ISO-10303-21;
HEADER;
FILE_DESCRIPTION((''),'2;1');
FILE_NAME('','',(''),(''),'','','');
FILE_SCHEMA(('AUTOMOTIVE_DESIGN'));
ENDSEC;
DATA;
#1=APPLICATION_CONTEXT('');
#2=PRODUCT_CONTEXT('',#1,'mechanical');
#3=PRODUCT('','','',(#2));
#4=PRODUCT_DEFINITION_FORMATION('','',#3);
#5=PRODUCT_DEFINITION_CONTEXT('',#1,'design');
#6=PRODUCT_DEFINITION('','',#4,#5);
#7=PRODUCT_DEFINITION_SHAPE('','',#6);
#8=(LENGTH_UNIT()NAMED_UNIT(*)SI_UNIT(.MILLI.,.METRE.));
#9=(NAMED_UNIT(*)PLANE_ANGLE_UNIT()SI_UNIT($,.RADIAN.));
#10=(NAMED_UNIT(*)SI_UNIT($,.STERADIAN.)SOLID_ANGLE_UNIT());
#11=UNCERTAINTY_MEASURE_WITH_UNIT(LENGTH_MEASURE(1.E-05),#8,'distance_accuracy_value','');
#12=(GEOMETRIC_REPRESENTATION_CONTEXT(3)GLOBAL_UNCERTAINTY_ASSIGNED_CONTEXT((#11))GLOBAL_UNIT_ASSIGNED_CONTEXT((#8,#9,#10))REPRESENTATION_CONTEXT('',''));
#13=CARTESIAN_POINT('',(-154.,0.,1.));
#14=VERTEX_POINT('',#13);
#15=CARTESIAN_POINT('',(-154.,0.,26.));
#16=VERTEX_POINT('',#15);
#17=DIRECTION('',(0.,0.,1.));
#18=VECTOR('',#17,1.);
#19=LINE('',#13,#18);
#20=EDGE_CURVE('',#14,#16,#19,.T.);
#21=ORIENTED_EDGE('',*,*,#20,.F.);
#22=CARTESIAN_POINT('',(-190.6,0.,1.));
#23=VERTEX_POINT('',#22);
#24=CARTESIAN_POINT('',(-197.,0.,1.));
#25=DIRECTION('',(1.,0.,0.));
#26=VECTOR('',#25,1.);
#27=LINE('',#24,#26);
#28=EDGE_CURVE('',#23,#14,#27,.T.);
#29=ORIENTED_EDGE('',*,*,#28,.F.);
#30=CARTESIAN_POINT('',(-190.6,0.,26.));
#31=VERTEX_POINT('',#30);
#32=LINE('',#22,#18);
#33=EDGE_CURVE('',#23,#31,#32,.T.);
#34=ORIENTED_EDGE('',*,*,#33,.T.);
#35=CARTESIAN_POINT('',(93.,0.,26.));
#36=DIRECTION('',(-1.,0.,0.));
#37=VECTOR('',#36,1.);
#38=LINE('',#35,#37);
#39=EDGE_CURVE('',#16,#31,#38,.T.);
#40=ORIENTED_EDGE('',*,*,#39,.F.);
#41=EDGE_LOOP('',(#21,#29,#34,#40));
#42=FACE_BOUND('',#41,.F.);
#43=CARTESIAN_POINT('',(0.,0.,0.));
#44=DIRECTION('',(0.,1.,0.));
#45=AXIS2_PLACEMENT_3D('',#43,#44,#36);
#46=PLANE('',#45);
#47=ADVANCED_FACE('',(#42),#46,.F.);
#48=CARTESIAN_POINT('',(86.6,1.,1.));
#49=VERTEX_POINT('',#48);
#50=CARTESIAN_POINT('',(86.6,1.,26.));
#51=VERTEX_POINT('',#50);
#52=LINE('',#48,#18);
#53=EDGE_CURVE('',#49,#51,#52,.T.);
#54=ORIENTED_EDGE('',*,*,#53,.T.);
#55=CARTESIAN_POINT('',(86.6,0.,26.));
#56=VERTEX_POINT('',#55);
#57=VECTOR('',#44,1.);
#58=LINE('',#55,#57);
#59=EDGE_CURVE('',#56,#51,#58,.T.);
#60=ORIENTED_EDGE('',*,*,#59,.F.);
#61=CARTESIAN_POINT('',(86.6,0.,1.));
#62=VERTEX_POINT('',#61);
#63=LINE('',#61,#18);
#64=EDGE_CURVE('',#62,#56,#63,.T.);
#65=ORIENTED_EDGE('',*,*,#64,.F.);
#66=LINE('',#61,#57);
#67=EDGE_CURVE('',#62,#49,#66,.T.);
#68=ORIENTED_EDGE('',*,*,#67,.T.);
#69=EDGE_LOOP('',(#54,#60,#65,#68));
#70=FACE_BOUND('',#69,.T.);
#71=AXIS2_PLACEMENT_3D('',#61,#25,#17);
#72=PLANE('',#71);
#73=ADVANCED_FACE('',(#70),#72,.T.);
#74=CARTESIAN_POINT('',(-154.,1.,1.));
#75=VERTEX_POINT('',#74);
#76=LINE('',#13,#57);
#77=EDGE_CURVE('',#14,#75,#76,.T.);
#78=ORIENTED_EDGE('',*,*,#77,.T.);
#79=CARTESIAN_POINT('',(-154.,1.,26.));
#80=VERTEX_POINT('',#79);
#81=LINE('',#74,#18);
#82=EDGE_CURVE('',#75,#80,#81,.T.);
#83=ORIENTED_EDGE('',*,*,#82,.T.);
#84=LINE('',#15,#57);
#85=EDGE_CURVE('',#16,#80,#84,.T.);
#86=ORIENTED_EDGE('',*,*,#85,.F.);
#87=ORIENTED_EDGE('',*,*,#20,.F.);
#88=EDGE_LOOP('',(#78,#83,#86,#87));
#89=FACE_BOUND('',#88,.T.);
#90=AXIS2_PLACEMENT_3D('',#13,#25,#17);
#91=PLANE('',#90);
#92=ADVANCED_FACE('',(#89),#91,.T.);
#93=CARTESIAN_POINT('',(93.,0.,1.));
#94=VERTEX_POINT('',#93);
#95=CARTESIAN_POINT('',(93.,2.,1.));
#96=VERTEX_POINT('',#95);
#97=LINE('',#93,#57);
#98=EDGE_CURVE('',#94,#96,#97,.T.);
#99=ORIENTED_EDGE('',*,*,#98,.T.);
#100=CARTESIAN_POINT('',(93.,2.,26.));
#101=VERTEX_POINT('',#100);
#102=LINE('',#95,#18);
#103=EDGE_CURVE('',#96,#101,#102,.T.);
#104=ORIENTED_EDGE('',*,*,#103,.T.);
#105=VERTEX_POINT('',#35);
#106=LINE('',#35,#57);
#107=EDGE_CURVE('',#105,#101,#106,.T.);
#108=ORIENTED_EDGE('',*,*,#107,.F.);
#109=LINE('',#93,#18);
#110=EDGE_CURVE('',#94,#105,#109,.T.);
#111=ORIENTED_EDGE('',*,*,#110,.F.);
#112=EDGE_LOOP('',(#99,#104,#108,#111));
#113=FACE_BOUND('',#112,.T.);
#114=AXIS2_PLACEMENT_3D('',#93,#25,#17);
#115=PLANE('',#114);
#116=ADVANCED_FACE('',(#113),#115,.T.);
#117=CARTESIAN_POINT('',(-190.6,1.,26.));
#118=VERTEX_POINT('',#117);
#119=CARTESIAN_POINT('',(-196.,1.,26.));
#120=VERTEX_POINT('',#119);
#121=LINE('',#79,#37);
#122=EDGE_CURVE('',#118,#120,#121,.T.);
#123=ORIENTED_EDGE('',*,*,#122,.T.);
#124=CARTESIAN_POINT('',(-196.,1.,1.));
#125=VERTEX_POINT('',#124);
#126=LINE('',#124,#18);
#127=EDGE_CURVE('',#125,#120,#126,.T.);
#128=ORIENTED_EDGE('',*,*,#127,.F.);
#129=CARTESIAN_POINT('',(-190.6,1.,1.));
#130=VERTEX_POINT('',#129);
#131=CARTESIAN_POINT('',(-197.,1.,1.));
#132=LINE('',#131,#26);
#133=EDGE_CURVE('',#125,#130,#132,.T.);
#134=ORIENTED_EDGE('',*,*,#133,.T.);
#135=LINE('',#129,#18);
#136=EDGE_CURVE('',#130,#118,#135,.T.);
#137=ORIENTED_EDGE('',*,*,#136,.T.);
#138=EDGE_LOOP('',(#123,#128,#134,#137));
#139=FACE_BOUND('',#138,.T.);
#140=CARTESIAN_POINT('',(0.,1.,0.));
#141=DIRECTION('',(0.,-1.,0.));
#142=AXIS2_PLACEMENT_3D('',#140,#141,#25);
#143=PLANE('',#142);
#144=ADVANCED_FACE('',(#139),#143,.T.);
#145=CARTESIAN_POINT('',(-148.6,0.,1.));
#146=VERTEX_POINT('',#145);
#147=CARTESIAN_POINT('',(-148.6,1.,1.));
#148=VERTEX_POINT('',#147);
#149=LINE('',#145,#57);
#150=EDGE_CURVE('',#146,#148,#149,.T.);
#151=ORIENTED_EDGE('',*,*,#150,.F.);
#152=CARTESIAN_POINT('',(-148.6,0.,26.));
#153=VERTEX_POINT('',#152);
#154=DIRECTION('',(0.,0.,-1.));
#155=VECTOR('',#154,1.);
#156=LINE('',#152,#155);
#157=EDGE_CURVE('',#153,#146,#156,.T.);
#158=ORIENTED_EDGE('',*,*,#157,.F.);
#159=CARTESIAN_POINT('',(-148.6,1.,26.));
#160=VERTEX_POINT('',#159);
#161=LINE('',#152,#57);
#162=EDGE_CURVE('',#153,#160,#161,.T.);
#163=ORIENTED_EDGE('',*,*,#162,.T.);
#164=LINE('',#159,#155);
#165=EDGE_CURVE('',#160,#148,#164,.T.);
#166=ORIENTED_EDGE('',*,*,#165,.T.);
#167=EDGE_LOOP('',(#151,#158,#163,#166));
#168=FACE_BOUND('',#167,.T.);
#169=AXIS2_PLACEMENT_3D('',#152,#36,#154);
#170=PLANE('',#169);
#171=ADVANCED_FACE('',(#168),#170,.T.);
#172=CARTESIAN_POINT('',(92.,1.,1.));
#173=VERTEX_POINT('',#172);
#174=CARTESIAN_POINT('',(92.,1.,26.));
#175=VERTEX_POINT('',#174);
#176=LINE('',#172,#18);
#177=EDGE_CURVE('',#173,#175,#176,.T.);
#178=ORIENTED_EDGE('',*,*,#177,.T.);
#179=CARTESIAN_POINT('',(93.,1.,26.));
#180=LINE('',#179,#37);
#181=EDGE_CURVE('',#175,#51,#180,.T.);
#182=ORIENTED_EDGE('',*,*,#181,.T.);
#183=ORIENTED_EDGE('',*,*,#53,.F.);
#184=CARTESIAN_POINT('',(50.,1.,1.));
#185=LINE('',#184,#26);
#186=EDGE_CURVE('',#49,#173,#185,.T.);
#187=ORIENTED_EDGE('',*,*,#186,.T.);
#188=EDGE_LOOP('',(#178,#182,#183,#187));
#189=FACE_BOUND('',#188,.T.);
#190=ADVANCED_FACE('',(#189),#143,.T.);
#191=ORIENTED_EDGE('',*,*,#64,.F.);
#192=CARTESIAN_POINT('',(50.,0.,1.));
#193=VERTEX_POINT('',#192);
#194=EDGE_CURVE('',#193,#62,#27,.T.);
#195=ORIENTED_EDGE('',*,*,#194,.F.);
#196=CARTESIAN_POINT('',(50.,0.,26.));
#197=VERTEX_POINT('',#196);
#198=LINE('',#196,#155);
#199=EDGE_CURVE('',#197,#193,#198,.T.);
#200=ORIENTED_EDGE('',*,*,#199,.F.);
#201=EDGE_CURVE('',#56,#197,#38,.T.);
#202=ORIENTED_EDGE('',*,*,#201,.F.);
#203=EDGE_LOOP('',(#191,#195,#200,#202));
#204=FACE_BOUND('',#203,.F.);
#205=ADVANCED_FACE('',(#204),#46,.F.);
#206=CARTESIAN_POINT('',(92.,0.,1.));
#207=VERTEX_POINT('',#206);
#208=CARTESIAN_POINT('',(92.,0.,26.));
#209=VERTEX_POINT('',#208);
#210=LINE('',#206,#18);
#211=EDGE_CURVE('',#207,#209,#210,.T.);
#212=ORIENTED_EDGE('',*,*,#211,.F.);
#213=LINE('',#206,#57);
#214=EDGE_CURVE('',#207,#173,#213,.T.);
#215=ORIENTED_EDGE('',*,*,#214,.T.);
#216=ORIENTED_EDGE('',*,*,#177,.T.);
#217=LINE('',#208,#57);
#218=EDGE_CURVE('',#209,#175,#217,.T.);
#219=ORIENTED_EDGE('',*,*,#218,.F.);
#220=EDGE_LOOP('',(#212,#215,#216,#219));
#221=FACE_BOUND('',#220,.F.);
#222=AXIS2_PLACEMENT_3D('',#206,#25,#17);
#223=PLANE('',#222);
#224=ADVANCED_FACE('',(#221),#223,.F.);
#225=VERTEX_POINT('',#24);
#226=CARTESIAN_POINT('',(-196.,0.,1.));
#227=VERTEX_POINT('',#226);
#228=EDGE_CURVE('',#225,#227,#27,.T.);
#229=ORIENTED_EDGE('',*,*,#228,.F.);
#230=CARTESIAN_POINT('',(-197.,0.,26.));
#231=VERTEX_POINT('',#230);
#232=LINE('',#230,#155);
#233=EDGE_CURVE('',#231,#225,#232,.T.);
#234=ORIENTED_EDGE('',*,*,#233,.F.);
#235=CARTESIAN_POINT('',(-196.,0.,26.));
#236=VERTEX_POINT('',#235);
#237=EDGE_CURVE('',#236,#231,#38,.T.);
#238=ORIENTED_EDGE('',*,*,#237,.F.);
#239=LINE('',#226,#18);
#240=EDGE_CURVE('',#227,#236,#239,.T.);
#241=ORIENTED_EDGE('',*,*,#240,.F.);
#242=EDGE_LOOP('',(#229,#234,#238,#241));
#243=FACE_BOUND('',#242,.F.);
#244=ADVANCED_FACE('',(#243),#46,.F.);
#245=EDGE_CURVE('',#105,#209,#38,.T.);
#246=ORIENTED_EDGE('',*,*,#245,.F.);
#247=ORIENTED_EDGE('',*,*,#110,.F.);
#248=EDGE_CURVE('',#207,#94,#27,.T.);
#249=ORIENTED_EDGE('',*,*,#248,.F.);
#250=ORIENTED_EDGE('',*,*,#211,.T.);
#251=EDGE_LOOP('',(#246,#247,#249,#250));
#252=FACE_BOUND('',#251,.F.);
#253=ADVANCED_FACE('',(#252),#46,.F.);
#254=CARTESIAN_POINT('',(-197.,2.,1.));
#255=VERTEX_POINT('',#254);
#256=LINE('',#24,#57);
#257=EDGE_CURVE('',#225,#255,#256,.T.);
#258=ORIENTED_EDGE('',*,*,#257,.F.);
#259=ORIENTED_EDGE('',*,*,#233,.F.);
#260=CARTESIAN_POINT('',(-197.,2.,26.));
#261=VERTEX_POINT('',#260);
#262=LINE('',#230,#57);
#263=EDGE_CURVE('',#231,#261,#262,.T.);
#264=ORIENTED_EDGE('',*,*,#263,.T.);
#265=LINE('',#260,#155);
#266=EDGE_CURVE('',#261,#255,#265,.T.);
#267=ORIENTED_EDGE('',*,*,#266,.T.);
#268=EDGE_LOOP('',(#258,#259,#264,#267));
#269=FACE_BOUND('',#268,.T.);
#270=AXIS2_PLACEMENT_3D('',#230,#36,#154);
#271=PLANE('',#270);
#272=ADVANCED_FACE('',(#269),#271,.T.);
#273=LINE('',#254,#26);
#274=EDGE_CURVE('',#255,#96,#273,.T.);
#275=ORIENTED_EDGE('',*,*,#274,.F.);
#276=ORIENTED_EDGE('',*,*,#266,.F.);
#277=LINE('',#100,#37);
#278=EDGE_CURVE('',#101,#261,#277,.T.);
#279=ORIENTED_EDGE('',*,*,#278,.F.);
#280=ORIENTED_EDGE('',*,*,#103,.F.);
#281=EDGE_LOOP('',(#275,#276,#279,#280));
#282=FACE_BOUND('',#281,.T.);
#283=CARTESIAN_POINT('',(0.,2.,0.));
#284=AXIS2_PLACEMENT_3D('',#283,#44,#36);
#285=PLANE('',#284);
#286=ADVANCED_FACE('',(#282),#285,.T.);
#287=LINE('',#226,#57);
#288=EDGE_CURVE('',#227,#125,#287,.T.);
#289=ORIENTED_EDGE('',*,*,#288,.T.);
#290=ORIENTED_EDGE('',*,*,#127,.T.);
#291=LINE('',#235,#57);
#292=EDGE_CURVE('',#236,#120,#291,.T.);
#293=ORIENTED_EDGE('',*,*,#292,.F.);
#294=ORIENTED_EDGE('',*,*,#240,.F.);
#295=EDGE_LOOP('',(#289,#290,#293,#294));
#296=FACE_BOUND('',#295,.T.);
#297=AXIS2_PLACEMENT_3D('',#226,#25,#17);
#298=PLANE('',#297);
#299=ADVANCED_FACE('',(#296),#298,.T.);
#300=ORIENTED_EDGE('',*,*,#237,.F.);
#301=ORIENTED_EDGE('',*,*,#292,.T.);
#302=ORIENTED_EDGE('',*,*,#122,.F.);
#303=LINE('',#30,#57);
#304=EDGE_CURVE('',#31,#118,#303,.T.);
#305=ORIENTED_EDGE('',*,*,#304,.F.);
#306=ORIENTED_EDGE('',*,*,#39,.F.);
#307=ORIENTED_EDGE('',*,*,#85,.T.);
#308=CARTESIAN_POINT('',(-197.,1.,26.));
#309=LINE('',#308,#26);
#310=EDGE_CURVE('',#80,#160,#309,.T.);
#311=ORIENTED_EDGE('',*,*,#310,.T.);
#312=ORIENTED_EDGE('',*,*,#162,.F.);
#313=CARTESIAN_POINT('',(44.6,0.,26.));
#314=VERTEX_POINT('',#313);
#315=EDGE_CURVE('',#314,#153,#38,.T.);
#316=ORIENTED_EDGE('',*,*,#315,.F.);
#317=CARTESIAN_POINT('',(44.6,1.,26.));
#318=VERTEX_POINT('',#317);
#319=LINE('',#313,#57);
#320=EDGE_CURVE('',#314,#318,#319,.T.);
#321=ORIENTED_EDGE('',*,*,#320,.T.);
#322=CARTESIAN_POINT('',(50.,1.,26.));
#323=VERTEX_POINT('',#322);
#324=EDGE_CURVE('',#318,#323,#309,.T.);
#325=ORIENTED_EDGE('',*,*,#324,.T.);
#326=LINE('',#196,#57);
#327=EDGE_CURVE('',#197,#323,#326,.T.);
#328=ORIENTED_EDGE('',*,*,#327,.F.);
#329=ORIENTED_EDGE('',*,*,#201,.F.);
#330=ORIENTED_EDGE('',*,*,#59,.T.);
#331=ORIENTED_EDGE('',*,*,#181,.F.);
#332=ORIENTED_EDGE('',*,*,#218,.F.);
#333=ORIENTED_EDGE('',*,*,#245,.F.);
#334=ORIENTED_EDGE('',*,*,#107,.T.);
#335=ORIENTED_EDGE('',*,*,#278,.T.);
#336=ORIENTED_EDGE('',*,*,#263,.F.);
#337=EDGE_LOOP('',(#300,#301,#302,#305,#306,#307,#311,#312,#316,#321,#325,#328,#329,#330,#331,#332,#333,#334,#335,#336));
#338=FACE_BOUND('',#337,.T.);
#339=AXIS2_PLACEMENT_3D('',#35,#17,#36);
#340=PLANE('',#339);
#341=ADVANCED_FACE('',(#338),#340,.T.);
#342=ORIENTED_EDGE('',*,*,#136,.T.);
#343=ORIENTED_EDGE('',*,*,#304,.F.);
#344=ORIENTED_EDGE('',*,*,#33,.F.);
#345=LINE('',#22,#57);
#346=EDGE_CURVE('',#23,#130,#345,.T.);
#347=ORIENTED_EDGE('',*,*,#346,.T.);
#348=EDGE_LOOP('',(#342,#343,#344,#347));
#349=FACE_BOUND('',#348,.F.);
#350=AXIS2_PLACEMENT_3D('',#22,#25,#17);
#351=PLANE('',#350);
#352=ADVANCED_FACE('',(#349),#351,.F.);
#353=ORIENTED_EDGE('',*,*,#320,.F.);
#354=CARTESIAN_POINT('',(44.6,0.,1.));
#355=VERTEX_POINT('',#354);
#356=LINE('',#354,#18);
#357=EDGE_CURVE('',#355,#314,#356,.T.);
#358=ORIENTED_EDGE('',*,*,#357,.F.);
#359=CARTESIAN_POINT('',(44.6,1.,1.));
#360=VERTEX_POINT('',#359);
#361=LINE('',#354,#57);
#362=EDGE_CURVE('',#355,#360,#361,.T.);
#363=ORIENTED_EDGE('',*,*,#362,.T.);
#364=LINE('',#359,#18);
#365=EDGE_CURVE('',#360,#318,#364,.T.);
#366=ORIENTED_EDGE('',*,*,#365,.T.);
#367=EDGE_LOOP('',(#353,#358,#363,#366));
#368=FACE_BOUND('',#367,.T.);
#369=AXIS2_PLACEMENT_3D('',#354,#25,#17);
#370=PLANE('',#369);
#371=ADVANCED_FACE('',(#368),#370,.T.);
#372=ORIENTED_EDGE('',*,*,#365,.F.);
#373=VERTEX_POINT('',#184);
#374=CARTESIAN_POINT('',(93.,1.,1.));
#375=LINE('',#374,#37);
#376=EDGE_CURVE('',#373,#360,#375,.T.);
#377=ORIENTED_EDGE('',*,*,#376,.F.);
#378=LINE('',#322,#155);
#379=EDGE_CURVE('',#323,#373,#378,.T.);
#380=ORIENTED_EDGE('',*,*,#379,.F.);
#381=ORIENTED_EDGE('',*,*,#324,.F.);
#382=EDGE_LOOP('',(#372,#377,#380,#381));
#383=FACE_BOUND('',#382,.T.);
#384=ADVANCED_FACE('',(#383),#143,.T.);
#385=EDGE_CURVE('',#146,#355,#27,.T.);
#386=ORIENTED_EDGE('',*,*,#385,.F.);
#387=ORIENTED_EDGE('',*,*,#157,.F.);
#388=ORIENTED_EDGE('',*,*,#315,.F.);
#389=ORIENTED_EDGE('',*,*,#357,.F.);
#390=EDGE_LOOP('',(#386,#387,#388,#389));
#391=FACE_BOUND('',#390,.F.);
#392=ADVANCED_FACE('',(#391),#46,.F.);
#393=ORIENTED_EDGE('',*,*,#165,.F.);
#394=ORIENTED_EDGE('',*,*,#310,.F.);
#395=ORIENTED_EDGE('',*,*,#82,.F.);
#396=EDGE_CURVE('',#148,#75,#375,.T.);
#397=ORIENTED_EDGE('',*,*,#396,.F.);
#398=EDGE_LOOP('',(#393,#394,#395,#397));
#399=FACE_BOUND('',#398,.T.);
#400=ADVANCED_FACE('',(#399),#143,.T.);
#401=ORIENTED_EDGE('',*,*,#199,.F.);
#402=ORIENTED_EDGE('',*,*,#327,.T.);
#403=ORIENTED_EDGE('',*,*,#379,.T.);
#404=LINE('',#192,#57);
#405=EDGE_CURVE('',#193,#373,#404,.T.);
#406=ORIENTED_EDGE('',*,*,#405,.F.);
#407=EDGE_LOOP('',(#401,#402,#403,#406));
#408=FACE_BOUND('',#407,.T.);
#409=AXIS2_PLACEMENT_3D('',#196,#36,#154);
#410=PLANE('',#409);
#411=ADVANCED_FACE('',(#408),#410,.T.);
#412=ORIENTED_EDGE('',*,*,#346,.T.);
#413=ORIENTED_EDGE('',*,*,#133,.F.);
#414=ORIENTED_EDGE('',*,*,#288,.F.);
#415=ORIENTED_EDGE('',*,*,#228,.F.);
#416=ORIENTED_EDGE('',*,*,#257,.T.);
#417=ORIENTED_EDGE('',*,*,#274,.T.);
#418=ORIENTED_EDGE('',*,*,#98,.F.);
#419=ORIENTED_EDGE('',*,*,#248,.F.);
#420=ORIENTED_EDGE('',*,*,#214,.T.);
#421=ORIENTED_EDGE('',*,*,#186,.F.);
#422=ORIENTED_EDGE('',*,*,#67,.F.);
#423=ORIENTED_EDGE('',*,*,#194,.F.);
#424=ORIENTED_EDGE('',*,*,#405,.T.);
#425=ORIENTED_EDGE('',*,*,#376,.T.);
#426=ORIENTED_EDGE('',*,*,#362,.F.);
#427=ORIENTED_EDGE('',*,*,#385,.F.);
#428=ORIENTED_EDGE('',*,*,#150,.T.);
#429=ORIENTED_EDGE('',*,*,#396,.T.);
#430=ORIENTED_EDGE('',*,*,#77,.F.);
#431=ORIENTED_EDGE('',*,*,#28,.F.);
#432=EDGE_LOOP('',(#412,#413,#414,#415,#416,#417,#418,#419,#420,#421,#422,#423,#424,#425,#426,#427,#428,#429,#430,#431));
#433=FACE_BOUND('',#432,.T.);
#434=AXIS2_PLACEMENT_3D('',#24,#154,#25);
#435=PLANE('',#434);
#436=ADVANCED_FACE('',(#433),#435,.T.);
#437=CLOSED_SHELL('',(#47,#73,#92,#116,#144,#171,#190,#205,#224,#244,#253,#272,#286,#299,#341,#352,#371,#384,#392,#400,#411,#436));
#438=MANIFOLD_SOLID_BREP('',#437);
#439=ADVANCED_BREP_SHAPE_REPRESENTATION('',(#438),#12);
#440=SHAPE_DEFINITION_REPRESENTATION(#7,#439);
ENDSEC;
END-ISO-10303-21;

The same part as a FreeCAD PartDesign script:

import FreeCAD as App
import Part
import Sketcher
from FreeCAD import Vector

doc = App.newDocument("Part")
body = doc.addObject("PartDesign::Body", "Body")

# Sketch on XZ plane
sketch1 = body.newObject("Sketcher::SketchObject", "Sketch")
sketch1.AttachmentSupport = (doc.getObject("XZ_Plane"), [""])
sketch1.MapMode = "FlatFace"
sketch1.addGeometry(Part.LineSegment(Vector(93, 1, 0), Vector(-197, 1, 0)), False)
sketch1.addGeometry(Part.LineSegment(Vector(-197, 1, 0), Vector(-197, 26, 0)), False)
sketch1.addGeometry(Part.LineSegment(Vector(-197, 26, 0), Vector(93, 26, 0)), False)
sketch1.addGeometry(Part.LineSegment(Vector(93, 26, 0), Vector(93, 1, 0)), False)
sketch1.addConstraint(Sketcher.Constraint("Coincident", 0, 2, 1, 1))
sketch1.addConstraint(Sketcher.Constraint("Coincident", 1, 2, 2, 1))
sketch1.addConstraint(Sketcher.Constraint("Coincident", 2, 2, 3, 1))
sketch1.addConstraint(Sketcher.Constraint("Coincident", 3, 2, 0, 1))
sketch1.addConstraint(Sketcher.Constraint("Horizontal", 0))
sketch1.addConstraint(Sketcher.Constraint("Vertical", 1))
sketch1.addConstraint(Sketcher.Constraint("Horizontal", 2))
sketch1.addConstraint(Sketcher.Constraint("Vertical", 3))
sketch1.addConstraint(Sketcher.Constraint("DistanceX", 0, 2, 0, 1, 290.0))
sketch1.addConstraint(Sketcher.Constraint("DistanceY", 1, 1, 1, 2, 25.0))
sketch1.addConstraint(Sketcher.Constraint("DistanceX", 0, 2, -1, 1, 197.0))
sketch1.addConstraint(Sketcher.Constraint("DistanceY", -1, 1, 0, 2, 1.0))
pad1 = body.newObject("PartDesign::Pad", "Pad")
pad1.Profile = sketch1
pad1.Length = 2
pad1.Reversed = True

# Sketch on XZ plane
sketch2 = body.newObject("Sketcher::SketchObject", "Sketch001")
sketch2.AttachmentSupport = (doc.getObject("XZ_Plane"), [""])
sketch2.MapMode = "FlatFace"
sketch2.addGeometry(Part.LineSegment(Vector(-148.6, 26, 0), Vector(-154, 26, 0)), False)
sketch2.addGeometry(Part.LineSegment(Vector(-154, 26, 0), Vector(-154, 1, 0)), False)
sketch2.addGeometry(Part.LineSegment(Vector(-154, 1, 0), Vector(-148.6, 1, 0)), False)
sketch2.addGeometry(Part.LineSegment(Vector(-148.6, 1, 0), Vector(-148.6, 26, 0)), False)
sketch2.addGeometry(Part.LineSegment(Vector(50, 26, 0), Vector(44.6, 26, 0)), False)
sketch2.addGeometry(Part.LineSegment(Vector(44.6, 26, 0), Vector(44.6, 1, 0)), False)
sketch2.addGeometry(Part.LineSegment(Vector(44.6, 1, 0), Vector(50, 1, 0)), False)
sketch2.addGeometry(Part.LineSegment(Vector(50, 1, 0), Vector(50, 26, 0)), False)
sketch2.addConstraint(Sketcher.Constraint("Coincident", 0, 2, 1, 1))
sketch2.addConstraint(Sketcher.Constraint("Coincident", 1, 2, 2, 1))
sketch2.addConstraint(Sketcher.Constraint("Coincident", 2, 2, 3, 1))
sketch2.addConstraint(Sketcher.Constraint("Coincident", 3, 2, 0, 1))
sketch2.addConstraint(Sketcher.Constraint("Coincident", 4, 2, 5, 1))
sketch2.addConstraint(Sketcher.Constraint("Coincident", 5, 2, 6, 1))
sketch2.addConstraint(Sketcher.Constraint("Coincident", 6, 2, 7, 1))
sketch2.addConstraint(Sketcher.Constraint("Coincident", 7, 2, 4, 1))
sketch2.addConstraint(Sketcher.Constraint("Horizontal", 0))
sketch2.addConstraint(Sketcher.Constraint("Vertical", 1))
sketch2.addConstraint(Sketcher.Constraint("Horizontal", 2))
sketch2.addConstraint(Sketcher.Constraint("Vertical", 3))
sketch2.addConstraint(Sketcher.Constraint("Horizontal", 4))
sketch2.addConstraint(Sketcher.Constraint("Vertical", 5))
sketch2.addConstraint(Sketcher.Constraint("Horizontal", 6))
sketch2.addConstraint(Sketcher.Constraint("Vertical", 7))
sketch2.addConstraint(Sketcher.Constraint("Horizontal", 3, 2, 4, 2))
sketch2.addConstraint(Sketcher.Constraint("Horizontal", 2, 2, 5, 2))
sketch2.addConstraint(Sketcher.Constraint("Equal", 2, 4))
sketch2.addConstraint(Sketcher.Constraint("DistanceX", 0, 2, 0, 1, 5.4))
sketch2.addConstraint(Sketcher.Constraint("DistanceY", 1, 2, 1, 1, 25.0))
sketch2.addConstraint(Sketcher.Constraint("DistanceX", 0, 2, -1, 1, 154.0))
sketch2.addConstraint(Sketcher.Constraint("DistanceY", -1, 1, 0, 2, 26.0))
sketch2.addConstraint(Sketcher.Constraint("DistanceX", -1, 1, 6, 2, 50.0))
pocket1 = body.newObject("PartDesign::Pocket", "Pocket")
pocket1.Profile = sketch2
pocket1.Length = 1

# Sketch on XZ plane
sketch3 = body.newObject("Sketcher::SketchObject", "Sketch002")
sketch3.AttachmentSupport = (doc.getObject("XZ_Plane"), [""])
sketch3.MapMode = "FlatFace"
sketch3.addGeometry(Part.LineSegment(Vector(92, 26, 0), Vector(86.6, 26, 0)), False)
sketch3.addGeometry(Part.LineSegment(Vector(86.6, 26, 0), Vector(86.6, 1, 0)), False)
sketch3.addGeometry(Part.LineSegment(Vector(86.6, 1, 0), Vector(92, 1, 0)), False)
sketch3.addGeometry(Part.LineSegment(Vector(92, 1, 0), Vector(92, 26, 0)), False)
sketch3.addGeometry(Part.LineSegment(Vector(-196, 1, 0), Vector(-190.6, 1, 0)), False)
sketch3.addGeometry(Part.LineSegment(Vector(-190.6, 1, 0), Vector(-190.6, 26, 0)), False)
sketch3.addGeometry(Part.LineSegment(Vector(-190.6, 26, 0), Vector(-196, 26, 0)), False)
sketch3.addGeometry(Part.LineSegment(Vector(-196, 26, 0), Vector(-196, 1, 0)), False)
sketch3.addConstraint(Sketcher.Constraint("Coincident", 0, 2, 1, 1))
sketch3.addConstraint(Sketcher.Constraint("Coincident", 1, 2, 2, 1))
sketch3.addConstraint(Sketcher.Constraint("Coincident", 2, 2, 3, 1))
sketch3.addConstraint(Sketcher.Constraint("Coincident", 3, 2, 0, 1))
sketch3.addConstraint(Sketcher.Constraint("Coincident", 4, 2, 5, 1))
sketch3.addConstraint(Sketcher.Constraint("Coincident", 5, 2, 6, 1))
sketch3.addConstraint(Sketcher.Constraint("Coincident", 6, 2, 7, 1))
sketch3.addConstraint(Sketcher.Constraint("Coincident", 7, 2, 4, 1))
sketch3.addConstraint(Sketcher.Constraint("Horizontal", 0))
sketch3.addConstraint(Sketcher.Constraint("Vertical", 1))
sketch3.addConstraint(Sketcher.Constraint("Horizontal", 2))
sketch3.addConstraint(Sketcher.Constraint("Vertical", 3))
sketch3.addConstraint(Sketcher.Constraint("Horizontal", 4))
sketch3.addConstraint(Sketcher.Constraint("Vertical", 5))
sketch3.addConstraint(Sketcher.Constraint("Horizontal", 6))
sketch3.addConstraint(Sketcher.Constraint("Vertical", 7))
sketch3.addConstraint(Sketcher.Constraint("Horizontal", 2, 2, 4, 2))
sketch3.addConstraint(Sketcher.Constraint("Horizontal", 3, 2, 5, 2))
sketch3.addConstraint(Sketcher.Constraint("Equal", 2, 4))
sketch3.addConstraint(Sketcher.Constraint("DistanceX", 0, 2, 0, 1, 5.4))
sketch3.addConstraint(Sketcher.Constraint("DistanceY", -1, 1, 1, 2, 1.0))
sketch3.addConstraint(Sketcher.Constraint("DistanceY", 1, 2, 1, 1, 25.0))
sketch3.addConstraint(Sketcher.Constraint("DistanceX", -1, 1, 2, 2, 92.0))
sketch3.addConstraint(Sketcher.Constraint("DistanceX", 6, 2, -1, 1, 196.0))
pocket2 = body.newObject("PartDesign::Pocket", "Pocket001")
pocket2.Profile = sketch3
pocket2.Length = 1

doc.recompute()
